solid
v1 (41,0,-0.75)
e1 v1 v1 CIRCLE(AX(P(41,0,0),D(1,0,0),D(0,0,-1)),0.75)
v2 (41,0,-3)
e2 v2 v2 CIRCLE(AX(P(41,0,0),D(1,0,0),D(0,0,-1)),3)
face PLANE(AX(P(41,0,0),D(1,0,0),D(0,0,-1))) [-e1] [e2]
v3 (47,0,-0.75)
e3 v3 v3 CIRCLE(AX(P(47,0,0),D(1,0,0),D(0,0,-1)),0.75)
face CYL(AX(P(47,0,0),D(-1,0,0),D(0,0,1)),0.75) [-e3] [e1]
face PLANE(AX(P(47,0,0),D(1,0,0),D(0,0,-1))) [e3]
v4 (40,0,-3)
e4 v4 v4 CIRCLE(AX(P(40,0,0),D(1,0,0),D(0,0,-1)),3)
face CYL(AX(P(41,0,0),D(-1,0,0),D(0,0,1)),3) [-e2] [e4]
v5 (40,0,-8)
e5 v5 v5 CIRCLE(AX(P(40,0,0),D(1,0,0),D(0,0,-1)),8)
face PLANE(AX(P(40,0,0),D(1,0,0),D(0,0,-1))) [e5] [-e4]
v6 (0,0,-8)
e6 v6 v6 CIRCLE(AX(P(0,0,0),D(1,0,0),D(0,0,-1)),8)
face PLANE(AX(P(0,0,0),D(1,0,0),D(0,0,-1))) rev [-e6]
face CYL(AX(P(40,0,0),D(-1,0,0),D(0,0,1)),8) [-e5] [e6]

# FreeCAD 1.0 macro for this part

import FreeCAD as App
import Part
import Sketcher
from FreeCAD import Vector
Q = App.Units.Quantity

doc = App.newDocument("Part")
body = doc.addObject("PartDesign::Body", "Body")

# Sketch on YZ plane
sketch1 = doc.addObject("Sketcher::SketchObject", "Sketch")
body.addObject(sketch1)
sketch1.AttachmentSupport = (doc.YZ_Plane, [""])
sketch1.MapMode = "FlatFace"
sketch1.addGeometry(Part.Circle(Vector(0, 0, 0), Vector(0, 0, 1), 8), False)
sketch1.addConstraint([
    Sketcher.Constraint("Coincident", 0, 3, -1, 1),
    Sketcher.Constraint("Diameter", 0, Q("16 mm")),
])
pad1 = doc.addObject("PartDesign::Pad", "Pad")
body.addObject(pad1)
pad1.Profile = sketch1
pad1.Length = 40

# Sketch on YZ plane
sketch2 = doc.addObject("Sketcher::SketchObject", "Sketch001")
body.addObject(sketch2)
sketch2.AttachmentSupport = (doc.YZ_Plane, [""])
sketch2.MapMode = "FlatFace"
sketch2.AttachmentOffset = App.Placement(Vector(0, 0, 40), App.Rotation())
sketch2.addGeometry(Part.Circle(Vector(0, 0, 0), Vector(0, 0, 1), 3), False)
sketch2.addConstraint([
    Sketcher.Constraint("Coincident", 0, 3, -1, 1),
    Sketcher.Constraint("Diameter", 0, Q("6 mm")),
])
pad2 = doc.addObject("PartDesign::Pad", "Pad001")
body.addObject(pad2)
pad2.Profile = sketch2
pad2.Length = 1

# Sketch on YZ plane
sketch3 = doc.addObject("Sketcher::SketchObject", "Sketch002")
body.addObject(sketch3)
sketch3.AttachmentSupport = (doc.YZ_Plane, [""])
sketch3.MapMode = "FlatFace"
sketch3.AttachmentOffset = App.Placement(Vector(0, 0, 41), App.Rotation())
sketch3.addGeometry(Part.Circle(Vector(0, 0, 0), Vector(0, 0, 1), 0.8), False)
sketch3.addConstraint([
    Sketcher.Constraint("Coincident", 0, 3, -1, 1),
    Sketcher.Constraint("Diameter", 0, Q("1.5 mm")),
])
pad3 = doc.addObject("PartDesign::Pad", "Pad002")
body.addObject(pad3)
pad3.Profile = sketch3
pad3.Length = 6

doc.recompute()
